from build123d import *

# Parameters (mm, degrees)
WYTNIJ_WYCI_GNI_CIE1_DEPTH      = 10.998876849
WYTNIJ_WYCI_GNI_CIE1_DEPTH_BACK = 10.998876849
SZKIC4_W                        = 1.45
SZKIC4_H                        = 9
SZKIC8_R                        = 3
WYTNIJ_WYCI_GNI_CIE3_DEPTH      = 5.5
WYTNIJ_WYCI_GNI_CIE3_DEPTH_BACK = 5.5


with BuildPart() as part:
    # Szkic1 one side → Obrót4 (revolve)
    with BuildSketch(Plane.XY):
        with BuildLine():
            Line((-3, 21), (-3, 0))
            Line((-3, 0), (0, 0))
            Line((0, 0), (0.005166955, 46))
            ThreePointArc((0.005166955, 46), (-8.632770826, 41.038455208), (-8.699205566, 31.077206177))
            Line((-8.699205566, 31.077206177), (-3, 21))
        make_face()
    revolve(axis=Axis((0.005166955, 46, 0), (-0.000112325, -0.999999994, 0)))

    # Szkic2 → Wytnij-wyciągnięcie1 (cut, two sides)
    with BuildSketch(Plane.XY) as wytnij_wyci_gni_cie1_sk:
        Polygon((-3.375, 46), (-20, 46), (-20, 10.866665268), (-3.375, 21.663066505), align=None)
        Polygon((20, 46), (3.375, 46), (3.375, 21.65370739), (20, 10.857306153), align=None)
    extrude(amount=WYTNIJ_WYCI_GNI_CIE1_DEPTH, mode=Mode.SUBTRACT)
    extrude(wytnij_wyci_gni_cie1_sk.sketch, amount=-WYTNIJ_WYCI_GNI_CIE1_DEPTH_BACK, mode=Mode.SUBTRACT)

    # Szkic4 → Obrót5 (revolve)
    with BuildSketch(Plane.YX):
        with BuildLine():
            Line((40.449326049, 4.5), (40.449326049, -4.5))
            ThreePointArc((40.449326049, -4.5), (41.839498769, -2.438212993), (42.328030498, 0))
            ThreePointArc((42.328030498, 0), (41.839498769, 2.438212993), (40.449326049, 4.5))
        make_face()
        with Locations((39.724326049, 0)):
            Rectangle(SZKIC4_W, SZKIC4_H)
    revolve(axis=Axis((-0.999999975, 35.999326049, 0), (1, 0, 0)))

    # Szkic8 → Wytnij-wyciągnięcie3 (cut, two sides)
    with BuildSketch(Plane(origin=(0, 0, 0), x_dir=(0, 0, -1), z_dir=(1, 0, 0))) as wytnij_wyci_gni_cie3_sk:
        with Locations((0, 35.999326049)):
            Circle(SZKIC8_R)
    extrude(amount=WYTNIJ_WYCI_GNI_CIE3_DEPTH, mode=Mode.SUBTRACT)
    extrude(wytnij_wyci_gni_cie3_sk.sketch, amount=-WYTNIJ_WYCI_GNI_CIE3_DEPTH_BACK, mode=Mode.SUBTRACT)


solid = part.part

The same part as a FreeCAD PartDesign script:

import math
import FreeCAD as App
import Part
import Sketcher
Q = App.Units.Quantity


def add_polygon(sketch, points):
    """Adds a closed chain of lines whose ends are joined by coincident constraints."""
    first, n = sketch.GeometryCount, len(points)
    for a, b in zip(points, points[1:] + points[:1]):
        sketch.addGeometry(Part.LineSegment(App.Vector(*a, 0), App.Vector(*b, 0)), False)
    for i in range(n):
        sketch.addConstraint(Sketcher.Constraint("Coincident", first + i, 2, first + (i + 1) % n, 1))

doc = App.newDocument("Part")
body = doc.addObject("PartDesign::Body", "Body")

sketch1 = body.newObject("Sketcher::SketchObject", "Sketch")
sketch1.AttachmentSupport = (doc.getObject("XY_Plane"), [""])
sketch1.MapMode = "FlatFace"
sketch1.addGeometry([
    Part.LineSegment(App.Vector(-3, 21, 0), App.Vector(-3, 0, 0)),
    Part.LineSegment(App.Vector(-3, 0, 0), App.Vector(0, 0, 0)),
    Part.LineSegment(App.Vector(0, 0, 0), App.Vector(0, 46, 0)),
    Part.ArcOfCircle(Part.Circle(App.Vector(0, 36, 0), App.Vector(0, 0, 1), 10), math.radians(90), math.radians(209)),
    Part.LineSegment(App.Vector(-8.7, 31.1, 0), App.Vector(-3, 21, 0)),
], False)
sketch1.addGeometry(Part.LineSegment(App.Vector(0, 46, 0), App.Vector(0, 0, 0)), True)
sketch1.addConstraint([
    Sketcher.Constraint("Coincident", 0, 2, 1, 1),
    Sketcher.Constraint("Coincident", 1, 2, 2, 1),
    Sketcher.Constraint("Coincident", 2, 2, 3, 1),
    Sketcher.Constraint("Tangent", 3, 2, 4, 1),
    Sketcher.Constraint("Coincident", 4, 2, 0, 1),
    Sketcher.Constraint("Vertical", 0),
    Sketcher.Constraint("Horizontal", 1),
    Sketcher.Constraint("Coincident", 1, 2, -1, 1),
    Sketcher.Constraint("Coincident", 5, 1, 2, 2),
    Sketcher.Constraint("PointOnObject", 5, 2, -2),
    Sketcher.Constraint("Vertical", 3, 3, 2, 2),
    Sketcher.Constraint("Radius", 3, 10.0),
    Sketcher.Constraint("DistanceX", 1, 1, 1, 2, 3.0),
    Sketcher.Constraint("DistanceY", 0, 2, 0, 1, 21.0),
    Sketcher.Constraint("Distance", 2, 46.0),
    Sketcher.Constraint("Distance", 4, 11.577177),
    Sketcher.Constraint("Distance", 5, 46.000337),
])
revolution = body.newObject("PartDesign::Revolution", "Revolution")
revolution.Profile = sketch1
revolution.ReferenceAxis = (sketch1, ["Axis0"])
revolution.Angle = 360

sketch2 = body.newObject("Sketcher::SketchObject", "Sketch001")
sketch2.AttachmentSupport = (doc.getObject("XY_Plane"), [""])
sketch2.MapMode = "FlatFace"
add_polygon(sketch2, [(-3, 46), (-20, 46), (-20, 11), (-3, 22)])
add_polygon(sketch2, [(20, 46), (3, 46), (3, 22), (20, 11)])
sketch2.addConstraint([
    Sketcher.Constraint("Horizontal", 0),
    Sketcher.Constraint("Vertical", 1),
    Sketcher.Constraint("Vertical", 3),
    Sketcher.Constraint("Horizontal", 4),
    Sketcher.Constraint("Vertical", 5),
    Sketcher.Constraint("Vertical", 7),
    Sketcher.Constraint("Symmetric", 3, 2, 4, 2, -2),
    Sketcher.Constraint("Equal", 0, 4),
    Sketcher.Constraint("Equal", 2, 6),
    Sketcher.Constraint("Angle", 2, Q("33 deg")),
    Sketcher.Constraint("DistanceX", 0, 2, -1, 1, 20.0),
    Sketcher.Constraint("DistanceY", -1, 1, 0, 2, 46.0),
    Sketcher.Constraint("DistanceX", 0, 2, 0, 1, 16.625),
    Sketcher.Constraint("DistanceY", 1, 2, 1, 1, 35.133335),
    Sketcher.Constraint("DistanceY", 5, 2, 5, 1, 24.346293),
])
pocket1 = body.newObject("PartDesign::Pocket", "Pocket")
pocket1.Profile = sketch2
pocket1.Type = "ThroughAll"
pocket1.Midplane = True

sketch3 = body.newObject("Sketcher::SketchObject", "Sketch002")
sketch3.AttachmentSupport = (doc.getObject("XY_Plane"), [""])
sketch3.MapMode = "FlatFace"
sketch3.addGeometry([
    Part.ArcOfCircle(Part.Circle(App.Vector(0, 36, 0), App.Vector(0, 0, 1), 6.3), math.radians(90), math.radians(135)),
    Part.ArcOfCircle(Part.Circle(App.Vector(0, 36, 0), App.Vector(0, 0, 1), 6.3), math.radians(45), math.radians(90)),
    Part.LineSegment(App.Vector(4.5, 40.4, 0), App.Vector(4.5, 39, 0)),
    Part.LineSegment(App.Vector(4.5, 39, 0), App.Vector(-4.5, 39, 0)),
    Part.LineSegment(App.Vector(-4.5, 39, 0), App.Vector(-4.5, 40.4, 0)),
], False)
sketch3.addGeometry(Part.LineSegment(App.Vector(-4.5, 36, 0), App.Vector(4.5, 36, 0)), True)
sketch3.addConstraint([
    Sketcher.Constraint("Tangent", 0, 1, 1, 2),
    Sketcher.Constraint("Coincident", 1, 1, 2, 1),
    Sketcher.Constraint("Coincident", 2, 2, 3, 1),
    Sketcher.Constraint("Coincident", 3, 2, 4, 1),
    Sketcher.Constraint("Coincident", 4, 2, 0, 2),
    Sketcher.Constraint("Vertical", 2),
    Sketcher.Constraint("Horizontal", 3),
    Sketcher.Constraint("Vertical", 4),
    Sketcher.Constraint("Horizontal", 5),
    Sketcher.Constraint("Equal", 0, 1),
    Sketcher.Constraint("Symmetric", 1, 1, 4, 2, -2),
    Sketcher.Constraint("PointOnObject", 0, 1, -2),
    Sketcher.Constraint("Horizontal", 1, 3, 5, 1),
    Sketcher.Constraint("Vertical", 4, 2, 5, 1),
    Sketcher.Constraint("Vertical", 2, 2, 5, 2),
    Sketcher.Constraint("DistanceX", 3, 2, 3, 1, 9.0),
    Sketcher.Constraint("DistanceY", 0, 3, 2, 2, 3.0),
    Sketcher.Constraint("DistanceY", 2, 2, 2, 1, 1.45),
    Sketcher.Constraint("DistanceY", -1, 1, 0, 1, 42.32803),
])
revolution2 = body.newObject("PartDesign::Revolution", "Revolution001")
revolution2.Profile = sketch3
revolution2.ReferenceAxis = (sketch3, ["Axis0"])
revolution2.Angle = 360

sketch4 = body.newObject("Sketcher::SketchObject", "Sketch003")
sketch4.AttachmentSupport = (doc.getObject("YZ_Plane"), [""])
sketch4.MapMode = "FlatFace"
sketch4.addGeometry(Part.Circle(App.Vector(36, 0, 0), App.Vector(0, 0, 1), 3), False)
sketch4.addConstraint([
    Sketcher.Constraint("PointOnObject", 0, 3, -1),
    Sketcher.Constraint("Diameter", 0, 6.0),
    Sketcher.Constraint("DistanceX", -1, 1, 0, 3, 35.999326),
])
pocket2 = body.newObject("PartDesign::Pocket", "Pocket001")
pocket2.Profile = sketch4
pocket2.Type = "ThroughAll"
pocket2.Midplane = True

doc.recompute()
